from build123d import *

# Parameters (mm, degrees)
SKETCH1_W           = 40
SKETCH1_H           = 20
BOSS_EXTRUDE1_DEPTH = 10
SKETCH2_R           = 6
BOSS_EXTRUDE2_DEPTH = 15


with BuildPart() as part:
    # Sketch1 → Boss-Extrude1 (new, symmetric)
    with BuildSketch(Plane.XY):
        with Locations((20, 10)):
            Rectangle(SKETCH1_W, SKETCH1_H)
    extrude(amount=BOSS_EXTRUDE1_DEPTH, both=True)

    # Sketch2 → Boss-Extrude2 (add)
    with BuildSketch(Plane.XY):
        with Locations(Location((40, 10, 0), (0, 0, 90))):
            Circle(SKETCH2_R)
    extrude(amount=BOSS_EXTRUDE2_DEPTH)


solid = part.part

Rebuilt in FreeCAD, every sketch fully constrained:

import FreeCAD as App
import Part
import Sketcher


def add_polygon(sketch, points):
    """Adds a closed chain of lines whose ends are joined by coincident constraints."""
    first, n = sketch.GeometryCount, len(points)
    for a, b in zip(points, points[1:] + points[:1]):
        sketch.addGeometry(Part.LineSegment(App.Vector(*a, 0), App.Vector(*b, 0)), False)
    for i in range(n):
        sketch.addConstraint(Sketcher.Constraint("Coincident", first + i, 2, first + (i + 1) % n, 1))

doc = App.newDocument("Part")
body = doc.addObject("PartDesign::Body", "Body")

sketch1 = body.newObject("Sketcher::SketchObject", "Sketch")
sketch1.AttachmentSupport = (doc.getObject("XY_Plane"), [""])
sketch1.MapMode = "FlatFace"
add_polygon(sketch1, [(0, 20), (0, 0), (40, 0), (40, 20)])
sketch1.addConstraint([
    Sketcher.Constraint("Vertical", 0),
    Sketcher.Constraint("Horizontal", 1),
    Sketcher.Constraint("Vertical", 2),
    Sketcher.Constraint("Horizontal", 3),
    Sketcher.Constraint("Coincident", 0, 2, -1, 1),
    Sketcher.Constraint("DistanceX", 1, 1, 1, 2, 40.0),
    Sketcher.Constraint("DistanceY", 0, 2, 0, 1, 20.0),
])
pad1 = body.newObject("PartDesign::Pad", "Pad")
pad1.Profile = sketch1
pad1.Length = 20
pad1.Midplane = True

sketch2 = body.newObject("Sketcher::SketchObject", "Sketch001")
sketch2.AttachmentSupport = (doc.getObject("XY_Plane"), [""])
sketch2.MapMode = "FlatFace"
sketch2.addGeometry(Part.Circle(App.Vector(40, 10, 0), App.Vector(0, 0, 1), 6), False)
sketch2.addConstraint([
    Sketcher.Constraint("Diameter", 0, 12.0),
    Sketcher.Constraint("DistanceX", -1, 1, 0, 3, 40.0),
    Sketcher.Constraint("DistanceY", -1, 1, 0, 3, 10.0),
])
pad2 = body.newObject("PartDesign::Pad", "Pad001")
pad2.Profile = sketch2
pad2.Length = 15

doc.recompute()
